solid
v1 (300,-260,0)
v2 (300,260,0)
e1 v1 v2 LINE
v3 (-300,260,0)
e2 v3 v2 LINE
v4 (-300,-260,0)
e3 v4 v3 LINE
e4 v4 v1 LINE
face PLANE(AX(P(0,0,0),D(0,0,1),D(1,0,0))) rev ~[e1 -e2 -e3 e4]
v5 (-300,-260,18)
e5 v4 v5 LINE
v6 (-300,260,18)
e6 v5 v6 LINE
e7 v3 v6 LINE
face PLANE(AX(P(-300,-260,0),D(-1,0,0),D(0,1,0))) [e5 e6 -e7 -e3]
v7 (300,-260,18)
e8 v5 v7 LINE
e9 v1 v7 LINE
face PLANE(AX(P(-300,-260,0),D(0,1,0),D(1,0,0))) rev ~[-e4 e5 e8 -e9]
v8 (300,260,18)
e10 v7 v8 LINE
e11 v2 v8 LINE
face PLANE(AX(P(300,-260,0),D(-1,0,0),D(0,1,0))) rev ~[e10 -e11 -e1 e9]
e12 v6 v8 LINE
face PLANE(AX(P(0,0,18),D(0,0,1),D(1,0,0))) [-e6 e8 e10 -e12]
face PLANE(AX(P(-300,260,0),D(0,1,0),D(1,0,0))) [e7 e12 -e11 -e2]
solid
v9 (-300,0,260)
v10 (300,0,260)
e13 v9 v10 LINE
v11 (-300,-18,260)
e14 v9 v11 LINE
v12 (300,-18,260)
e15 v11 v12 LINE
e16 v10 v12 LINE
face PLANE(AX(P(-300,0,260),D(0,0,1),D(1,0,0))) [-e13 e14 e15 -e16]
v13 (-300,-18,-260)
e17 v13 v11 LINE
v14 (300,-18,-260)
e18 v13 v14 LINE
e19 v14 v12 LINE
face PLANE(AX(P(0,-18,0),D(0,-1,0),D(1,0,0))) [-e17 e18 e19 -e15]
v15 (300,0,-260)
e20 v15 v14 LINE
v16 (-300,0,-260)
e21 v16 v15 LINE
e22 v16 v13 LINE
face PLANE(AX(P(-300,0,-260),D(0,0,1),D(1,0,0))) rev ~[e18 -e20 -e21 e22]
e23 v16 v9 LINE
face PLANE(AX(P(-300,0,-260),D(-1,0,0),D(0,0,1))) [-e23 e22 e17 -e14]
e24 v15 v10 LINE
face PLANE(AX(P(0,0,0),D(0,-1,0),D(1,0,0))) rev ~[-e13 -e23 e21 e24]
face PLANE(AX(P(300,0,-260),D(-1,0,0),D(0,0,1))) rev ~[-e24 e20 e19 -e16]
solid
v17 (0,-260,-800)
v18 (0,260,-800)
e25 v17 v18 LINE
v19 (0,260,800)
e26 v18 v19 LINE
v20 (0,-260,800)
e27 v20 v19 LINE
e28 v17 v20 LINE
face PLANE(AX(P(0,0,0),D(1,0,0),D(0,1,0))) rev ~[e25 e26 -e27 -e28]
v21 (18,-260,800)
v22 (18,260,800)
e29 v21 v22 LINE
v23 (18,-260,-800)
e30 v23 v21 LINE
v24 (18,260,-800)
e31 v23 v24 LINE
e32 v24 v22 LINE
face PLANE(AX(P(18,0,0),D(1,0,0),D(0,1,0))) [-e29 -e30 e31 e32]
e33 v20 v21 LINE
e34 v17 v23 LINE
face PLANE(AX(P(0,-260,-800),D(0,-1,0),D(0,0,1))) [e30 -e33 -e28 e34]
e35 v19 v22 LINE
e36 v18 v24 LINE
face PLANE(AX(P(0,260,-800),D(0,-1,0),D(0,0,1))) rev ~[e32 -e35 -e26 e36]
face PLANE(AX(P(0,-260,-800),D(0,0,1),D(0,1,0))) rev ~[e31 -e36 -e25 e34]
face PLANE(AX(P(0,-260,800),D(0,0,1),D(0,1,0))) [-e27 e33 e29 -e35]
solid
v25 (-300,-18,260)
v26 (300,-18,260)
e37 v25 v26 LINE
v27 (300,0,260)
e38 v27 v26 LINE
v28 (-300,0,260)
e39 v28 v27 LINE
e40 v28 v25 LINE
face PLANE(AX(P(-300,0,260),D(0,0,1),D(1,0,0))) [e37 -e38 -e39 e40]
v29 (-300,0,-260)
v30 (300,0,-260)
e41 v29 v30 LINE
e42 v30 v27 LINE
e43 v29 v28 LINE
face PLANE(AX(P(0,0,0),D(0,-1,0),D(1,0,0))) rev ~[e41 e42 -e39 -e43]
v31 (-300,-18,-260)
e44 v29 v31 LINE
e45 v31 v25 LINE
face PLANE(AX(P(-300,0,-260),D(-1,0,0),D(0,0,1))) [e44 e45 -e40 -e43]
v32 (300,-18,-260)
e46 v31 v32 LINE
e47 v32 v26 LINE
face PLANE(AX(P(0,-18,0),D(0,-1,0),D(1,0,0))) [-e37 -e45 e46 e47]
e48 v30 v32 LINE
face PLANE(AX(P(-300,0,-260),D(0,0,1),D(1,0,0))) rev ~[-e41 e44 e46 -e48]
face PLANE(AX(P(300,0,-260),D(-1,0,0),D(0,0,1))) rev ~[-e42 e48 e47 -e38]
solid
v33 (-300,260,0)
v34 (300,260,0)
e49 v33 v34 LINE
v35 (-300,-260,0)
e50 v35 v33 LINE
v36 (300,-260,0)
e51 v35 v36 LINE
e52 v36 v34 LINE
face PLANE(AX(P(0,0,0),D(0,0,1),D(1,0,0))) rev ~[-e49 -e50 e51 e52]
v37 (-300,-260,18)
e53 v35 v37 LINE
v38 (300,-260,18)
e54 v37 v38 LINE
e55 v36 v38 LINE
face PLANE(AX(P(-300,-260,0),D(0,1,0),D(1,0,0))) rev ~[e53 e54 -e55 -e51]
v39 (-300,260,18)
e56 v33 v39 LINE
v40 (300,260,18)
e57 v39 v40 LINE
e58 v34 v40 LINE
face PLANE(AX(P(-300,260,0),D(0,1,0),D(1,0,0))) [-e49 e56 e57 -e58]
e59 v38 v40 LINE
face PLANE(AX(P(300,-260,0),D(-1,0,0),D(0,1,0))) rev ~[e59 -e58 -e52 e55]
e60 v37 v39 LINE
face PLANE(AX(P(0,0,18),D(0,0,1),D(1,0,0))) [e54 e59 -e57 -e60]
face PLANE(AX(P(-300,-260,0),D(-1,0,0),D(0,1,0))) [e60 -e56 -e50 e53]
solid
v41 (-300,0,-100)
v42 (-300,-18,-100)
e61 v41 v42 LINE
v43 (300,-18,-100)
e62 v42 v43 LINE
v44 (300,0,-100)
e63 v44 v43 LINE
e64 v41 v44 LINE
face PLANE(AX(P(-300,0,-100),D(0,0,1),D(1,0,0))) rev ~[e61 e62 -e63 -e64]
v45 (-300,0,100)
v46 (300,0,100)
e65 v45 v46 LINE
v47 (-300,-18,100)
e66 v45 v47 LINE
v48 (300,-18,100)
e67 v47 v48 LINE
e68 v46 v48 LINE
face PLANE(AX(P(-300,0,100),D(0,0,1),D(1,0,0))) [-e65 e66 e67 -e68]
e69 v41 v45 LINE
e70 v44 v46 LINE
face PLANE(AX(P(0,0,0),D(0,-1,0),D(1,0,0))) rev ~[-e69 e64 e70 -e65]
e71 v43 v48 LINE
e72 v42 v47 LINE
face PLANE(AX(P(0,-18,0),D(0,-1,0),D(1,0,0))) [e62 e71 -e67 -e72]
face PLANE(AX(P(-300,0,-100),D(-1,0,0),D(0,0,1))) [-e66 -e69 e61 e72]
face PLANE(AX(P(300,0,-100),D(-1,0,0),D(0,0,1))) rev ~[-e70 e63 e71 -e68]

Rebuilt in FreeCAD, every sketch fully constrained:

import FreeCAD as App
import Part
import Sketcher

V = App.Vector
Q = App.Units.Quantity


def add_polygon(sketch, points):
    """Adds a closed chain of lines whose ends are joined by coincident constraints."""
    first, n = sketch.GeometryCount, len(points)
    for a, b in zip(points, points[1:] + points[:1]):
        sketch.addGeometry(Part.LineSegment(App.Vector(*a, 0), App.Vector(*b, 0)), False)
    for i in range(n):
        sketch.addConstraint(Sketcher.Constraint("Coincident", first + i, 2, first + (i + 1) % n, 1))

doc = App.newDocument("Part")
body = doc.addObject("PartDesign::Body", "Body")

# Sketch on YZ plane
sketch1 = body.newObject("Sketcher::SketchObject", "Sketch")
sketch1.AttachmentSupport = (doc.getObject("YZ_Plane"), [""])
sketch1.MapMode = "FlatFace"
add_polygon(sketch1, [(-260, 800), (-260, -800), (260, -800), (260, 800)])  # lines 0-3
sketch1.addConstraint([
    Sketcher.Constraint("Vertical", 0),
    Sketcher.Constraint("Horizontal", 1),
    Sketcher.Constraint("Vertical", 2),
    Sketcher.Constraint("Horizontal", 3),
    Sketcher.Constraint("Symmetric", 0, 2, 2, 2, -1, 1),
    Sketcher.Constraint("DistanceX", 1, 1, 1, 2, Q("520 mm")),
    Sketcher.Constraint("DistanceY", 0, 2, 0, 1, Q("1600 mm")),
])
pad1 = body.newObject("PartDesign::Pad", "Pad")
pad1.Profile = sketch1
pad1.Length = 18
body2 = doc.addObject("PartDesign::Body", "Body001")

# Sketch on XY plane
sketch2 = body2.newObject("Sketcher::SketchObject", "Sketch001")
sketch2.AttachmentSupport = (doc.getObject("XY_Plane001"), [""])
sketch2.MapMode = "FlatFace"
add_polygon(sketch2, [(-300, 260), (-300, -260), (300, -260), (300, 260)])  # lines 0-3
sketch2.addConstraint([
    Sketcher.Constraint("Vertical", 0),
    Sketcher.Constraint("Horizontal", 1),
    Sketcher.Constraint("Vertical", 2),
    Sketcher.Constraint("Horizontal", 3),
    Sketcher.Constraint("Symmetric", 0, 2, 2, 2, -1, 1),
    Sketcher.Constraint("DistanceX", 1, 1, 1, 2, Q("600 mm")),
    Sketcher.Constraint("DistanceY", 0, 2, 0, 1, Q("520 mm")),
])
pad2 = body2.newObject("PartDesign::Pad", "Pad001")
pad2.Profile = sketch2
pad2.Length = 18
body3 = doc.addObject("PartDesign::Body", "Body002")

# Sketch on XZ plane
sketch3 = body3.newObject("Sketcher::SketchObject", "Sketch002")
sketch3.AttachmentSupport = (doc.getObject("XZ_Plane002"), [""])
sketch3.MapMode = "FlatFace"
add_polygon(sketch3, [(-300, 260), (-300, -260), (300, -260), (300, 260)])  # lines 0-3
sketch3.addConstraint([
    Sketcher.Constraint("Vertical", 0),
    Sketcher.Constraint("Horizontal", 1),
    Sketcher.Constraint("Vertical", 2),
    Sketcher.Constraint("Horizontal", 3),
    Sketcher.Constraint("Symmetric", 0, 2, 2, 2, -1, 1),
    Sketcher.Constraint("DistanceX", 1, 1, 1, 2, Q("600 mm")),
    Sketcher.Constraint("DistanceY", 0, 2, 0, 1, Q("520 mm")),
])
pad3 = body3.newObject("PartDesign::Pad", "Pad002")
pad3.Profile = sketch3
pad3.Length = 18
body4 = doc.addObject("PartDesign::Body", "Body003")

# Sketch on XZ plane
sketch4 = body4.newObject("Sketcher::SketchObject", "Sketch003")
sketch4.AttachmentSupport = (doc.getObject("XZ_Plane003"), [""])
sketch4.MapMode = "FlatFace"
add_polygon(sketch4, [(-300, 100), (-300, -100), (300, -100), (300, 100)])  # lines 0-3
sketch4.addConstraint([
    Sketcher.Constraint("Vertical", 0),
    Sketcher.Constraint("Horizontal", 1),
    Sketcher.Constraint("Vertical", 2),
    Sketcher.Constraint("Horizontal", 3),
    Sketcher.Constraint("Symmetric", 0, 2, 2, 2, -1, 1),
    Sketcher.Constraint("DistanceX", 1, 1, 1, 2, Q("600 mm")),
    Sketcher.Constraint("DistanceY", 0, 2, 0, 1, Q("200 mm")),
])
pad4 = body4.newObject("PartDesign::Pad", "Pad003")
pad4.Profile = sketch4
pad4.Length = 18
body5 = doc.addObject("PartDesign::Body", "Body004")

# Sketch on XY plane
sketch5 = body5.newObject("Sketcher::SketchObject", "Sketch004")
sketch5.AttachmentSupport = (doc.getObject("XY_Plane004"), [""])
sketch5.MapMode = "FlatFace"
add_polygon(sketch5, [(-300, 260), (-300, -260), (300, -260), (300, 260)])  # lines 0-3
sketch5.addConstraint([
    Sketcher.Constraint("Vertical", 0),
    Sketcher.Constraint("Horizontal", 1),
    Sketcher.Constraint("Vertical", 2),
    Sketcher.Constraint("Horizontal", 3),
    Sketcher.Constraint("Symmetric", 0, 2, 2, 2, -1, 1),
    Sketcher.Constraint("DistanceX", 1, 1, 1, 2, Q("600 mm")),
    Sketcher.Constraint("DistanceY", 0, 2, 0, 1, Q("520 mm")),
])
pad5 = body5.newObject("PartDesign::Pad", "Pad004")
pad5.Profile = sketch5
pad5.Length = 18
body6 = doc.addObject("PartDesign::Body", "Body005")

# Sketch on XZ plane
sketch6 = body6.newObject("Sketcher::SketchObject", "Sketch005")
sketch6.AttachmentSupport = (doc.getObject("XZ_Plane005"), [""])
sketch6.MapMode = "FlatFace"
add_polygon(sketch6, [(-300, 260), (-300, -260), (300, -260), (300, 260)])  # lines 0-3
sketch6.addConstraint([
    Sketcher.Constraint("Vertical", 0),
    Sketcher.Constraint("Horizontal", 1),
    Sketcher.Constraint("Vertical", 2),
    Sketcher.Constraint("Horizontal", 3),
    Sketcher.Constraint("Symmetric", 0, 2, 2, 2, -1, 1),
    Sketcher.Constraint("DistanceX", 1, 1, 1, 2, Q("600 mm")),
    Sketcher.Constraint("DistanceY", 0, 2, 0, 1, Q("520 mm")),
])
pad6 = body6.newObject("PartDesign::Pad", "Pad005")
pad6.Profile = sketch6
pad6.Length = 18

doc.recompute()
